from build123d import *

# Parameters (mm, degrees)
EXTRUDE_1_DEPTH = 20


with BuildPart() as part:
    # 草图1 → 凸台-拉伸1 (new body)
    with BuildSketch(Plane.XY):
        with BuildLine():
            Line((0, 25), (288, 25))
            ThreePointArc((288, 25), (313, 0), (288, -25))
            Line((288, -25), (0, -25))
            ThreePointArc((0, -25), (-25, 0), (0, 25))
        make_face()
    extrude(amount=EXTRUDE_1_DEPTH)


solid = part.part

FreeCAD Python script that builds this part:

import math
import FreeCAD as App
import Part
import Sketcher

V = App.Vector

doc = App.newDocument("Part")
body = doc.addObject("PartDesign::Body", "Body")

sketch1 = body.newObject("Sketcher::SketchObject", "Sketch")
sketch1.AttachmentSupport = (doc.getObject("XY_Plane"), [""])
sketch1.MapMode = "FlatFace"
sketch1.addGeometry([
    Part.LineSegment(V(288, 25, 0), V(0, 25, 0)),
    Part.ArcOfCircle(Part.Circle(V(0, 0, 0), V(0, 0, 1), 25), math.radians(90), math.radians(270)),
    Part.LineSegment(V(0, -25, 0), V(288, -25, 0)),
    Part.ArcOfCircle(Part.Circle(V(288, 0, 0), V(0, 0, 1), 25), math.radians(-90), math.radians(90)),
], False)
sketch1.addConstraint([
    Sketcher.Constraint("Tangent", 0, 2, 1, 1),
    Sketcher.Constraint("Tangent", 1, 2, 2, 1),
    Sketcher.Constraint("Tangent", 2, 2, 3, 1),
    Sketcher.Constraint("Tangent", 3, 2, 0, 1),
    Sketcher.Constraint("Horizontal", 0),
    Sketcher.Constraint("Horizontal", 2),
    Sketcher.Constraint("Coincident", 1, 3, -1, 1),
    Sketcher.Constraint("Radius", 1, 25.0),
    Sketcher.Constraint("DistanceX", 0, 2, 0, 1, 288.0),
])
pad1 = body.newObject("PartDesign::Pad", "Pad")
pad1.Profile = sketch1
pad1.Length = 20

doc.recompute()
